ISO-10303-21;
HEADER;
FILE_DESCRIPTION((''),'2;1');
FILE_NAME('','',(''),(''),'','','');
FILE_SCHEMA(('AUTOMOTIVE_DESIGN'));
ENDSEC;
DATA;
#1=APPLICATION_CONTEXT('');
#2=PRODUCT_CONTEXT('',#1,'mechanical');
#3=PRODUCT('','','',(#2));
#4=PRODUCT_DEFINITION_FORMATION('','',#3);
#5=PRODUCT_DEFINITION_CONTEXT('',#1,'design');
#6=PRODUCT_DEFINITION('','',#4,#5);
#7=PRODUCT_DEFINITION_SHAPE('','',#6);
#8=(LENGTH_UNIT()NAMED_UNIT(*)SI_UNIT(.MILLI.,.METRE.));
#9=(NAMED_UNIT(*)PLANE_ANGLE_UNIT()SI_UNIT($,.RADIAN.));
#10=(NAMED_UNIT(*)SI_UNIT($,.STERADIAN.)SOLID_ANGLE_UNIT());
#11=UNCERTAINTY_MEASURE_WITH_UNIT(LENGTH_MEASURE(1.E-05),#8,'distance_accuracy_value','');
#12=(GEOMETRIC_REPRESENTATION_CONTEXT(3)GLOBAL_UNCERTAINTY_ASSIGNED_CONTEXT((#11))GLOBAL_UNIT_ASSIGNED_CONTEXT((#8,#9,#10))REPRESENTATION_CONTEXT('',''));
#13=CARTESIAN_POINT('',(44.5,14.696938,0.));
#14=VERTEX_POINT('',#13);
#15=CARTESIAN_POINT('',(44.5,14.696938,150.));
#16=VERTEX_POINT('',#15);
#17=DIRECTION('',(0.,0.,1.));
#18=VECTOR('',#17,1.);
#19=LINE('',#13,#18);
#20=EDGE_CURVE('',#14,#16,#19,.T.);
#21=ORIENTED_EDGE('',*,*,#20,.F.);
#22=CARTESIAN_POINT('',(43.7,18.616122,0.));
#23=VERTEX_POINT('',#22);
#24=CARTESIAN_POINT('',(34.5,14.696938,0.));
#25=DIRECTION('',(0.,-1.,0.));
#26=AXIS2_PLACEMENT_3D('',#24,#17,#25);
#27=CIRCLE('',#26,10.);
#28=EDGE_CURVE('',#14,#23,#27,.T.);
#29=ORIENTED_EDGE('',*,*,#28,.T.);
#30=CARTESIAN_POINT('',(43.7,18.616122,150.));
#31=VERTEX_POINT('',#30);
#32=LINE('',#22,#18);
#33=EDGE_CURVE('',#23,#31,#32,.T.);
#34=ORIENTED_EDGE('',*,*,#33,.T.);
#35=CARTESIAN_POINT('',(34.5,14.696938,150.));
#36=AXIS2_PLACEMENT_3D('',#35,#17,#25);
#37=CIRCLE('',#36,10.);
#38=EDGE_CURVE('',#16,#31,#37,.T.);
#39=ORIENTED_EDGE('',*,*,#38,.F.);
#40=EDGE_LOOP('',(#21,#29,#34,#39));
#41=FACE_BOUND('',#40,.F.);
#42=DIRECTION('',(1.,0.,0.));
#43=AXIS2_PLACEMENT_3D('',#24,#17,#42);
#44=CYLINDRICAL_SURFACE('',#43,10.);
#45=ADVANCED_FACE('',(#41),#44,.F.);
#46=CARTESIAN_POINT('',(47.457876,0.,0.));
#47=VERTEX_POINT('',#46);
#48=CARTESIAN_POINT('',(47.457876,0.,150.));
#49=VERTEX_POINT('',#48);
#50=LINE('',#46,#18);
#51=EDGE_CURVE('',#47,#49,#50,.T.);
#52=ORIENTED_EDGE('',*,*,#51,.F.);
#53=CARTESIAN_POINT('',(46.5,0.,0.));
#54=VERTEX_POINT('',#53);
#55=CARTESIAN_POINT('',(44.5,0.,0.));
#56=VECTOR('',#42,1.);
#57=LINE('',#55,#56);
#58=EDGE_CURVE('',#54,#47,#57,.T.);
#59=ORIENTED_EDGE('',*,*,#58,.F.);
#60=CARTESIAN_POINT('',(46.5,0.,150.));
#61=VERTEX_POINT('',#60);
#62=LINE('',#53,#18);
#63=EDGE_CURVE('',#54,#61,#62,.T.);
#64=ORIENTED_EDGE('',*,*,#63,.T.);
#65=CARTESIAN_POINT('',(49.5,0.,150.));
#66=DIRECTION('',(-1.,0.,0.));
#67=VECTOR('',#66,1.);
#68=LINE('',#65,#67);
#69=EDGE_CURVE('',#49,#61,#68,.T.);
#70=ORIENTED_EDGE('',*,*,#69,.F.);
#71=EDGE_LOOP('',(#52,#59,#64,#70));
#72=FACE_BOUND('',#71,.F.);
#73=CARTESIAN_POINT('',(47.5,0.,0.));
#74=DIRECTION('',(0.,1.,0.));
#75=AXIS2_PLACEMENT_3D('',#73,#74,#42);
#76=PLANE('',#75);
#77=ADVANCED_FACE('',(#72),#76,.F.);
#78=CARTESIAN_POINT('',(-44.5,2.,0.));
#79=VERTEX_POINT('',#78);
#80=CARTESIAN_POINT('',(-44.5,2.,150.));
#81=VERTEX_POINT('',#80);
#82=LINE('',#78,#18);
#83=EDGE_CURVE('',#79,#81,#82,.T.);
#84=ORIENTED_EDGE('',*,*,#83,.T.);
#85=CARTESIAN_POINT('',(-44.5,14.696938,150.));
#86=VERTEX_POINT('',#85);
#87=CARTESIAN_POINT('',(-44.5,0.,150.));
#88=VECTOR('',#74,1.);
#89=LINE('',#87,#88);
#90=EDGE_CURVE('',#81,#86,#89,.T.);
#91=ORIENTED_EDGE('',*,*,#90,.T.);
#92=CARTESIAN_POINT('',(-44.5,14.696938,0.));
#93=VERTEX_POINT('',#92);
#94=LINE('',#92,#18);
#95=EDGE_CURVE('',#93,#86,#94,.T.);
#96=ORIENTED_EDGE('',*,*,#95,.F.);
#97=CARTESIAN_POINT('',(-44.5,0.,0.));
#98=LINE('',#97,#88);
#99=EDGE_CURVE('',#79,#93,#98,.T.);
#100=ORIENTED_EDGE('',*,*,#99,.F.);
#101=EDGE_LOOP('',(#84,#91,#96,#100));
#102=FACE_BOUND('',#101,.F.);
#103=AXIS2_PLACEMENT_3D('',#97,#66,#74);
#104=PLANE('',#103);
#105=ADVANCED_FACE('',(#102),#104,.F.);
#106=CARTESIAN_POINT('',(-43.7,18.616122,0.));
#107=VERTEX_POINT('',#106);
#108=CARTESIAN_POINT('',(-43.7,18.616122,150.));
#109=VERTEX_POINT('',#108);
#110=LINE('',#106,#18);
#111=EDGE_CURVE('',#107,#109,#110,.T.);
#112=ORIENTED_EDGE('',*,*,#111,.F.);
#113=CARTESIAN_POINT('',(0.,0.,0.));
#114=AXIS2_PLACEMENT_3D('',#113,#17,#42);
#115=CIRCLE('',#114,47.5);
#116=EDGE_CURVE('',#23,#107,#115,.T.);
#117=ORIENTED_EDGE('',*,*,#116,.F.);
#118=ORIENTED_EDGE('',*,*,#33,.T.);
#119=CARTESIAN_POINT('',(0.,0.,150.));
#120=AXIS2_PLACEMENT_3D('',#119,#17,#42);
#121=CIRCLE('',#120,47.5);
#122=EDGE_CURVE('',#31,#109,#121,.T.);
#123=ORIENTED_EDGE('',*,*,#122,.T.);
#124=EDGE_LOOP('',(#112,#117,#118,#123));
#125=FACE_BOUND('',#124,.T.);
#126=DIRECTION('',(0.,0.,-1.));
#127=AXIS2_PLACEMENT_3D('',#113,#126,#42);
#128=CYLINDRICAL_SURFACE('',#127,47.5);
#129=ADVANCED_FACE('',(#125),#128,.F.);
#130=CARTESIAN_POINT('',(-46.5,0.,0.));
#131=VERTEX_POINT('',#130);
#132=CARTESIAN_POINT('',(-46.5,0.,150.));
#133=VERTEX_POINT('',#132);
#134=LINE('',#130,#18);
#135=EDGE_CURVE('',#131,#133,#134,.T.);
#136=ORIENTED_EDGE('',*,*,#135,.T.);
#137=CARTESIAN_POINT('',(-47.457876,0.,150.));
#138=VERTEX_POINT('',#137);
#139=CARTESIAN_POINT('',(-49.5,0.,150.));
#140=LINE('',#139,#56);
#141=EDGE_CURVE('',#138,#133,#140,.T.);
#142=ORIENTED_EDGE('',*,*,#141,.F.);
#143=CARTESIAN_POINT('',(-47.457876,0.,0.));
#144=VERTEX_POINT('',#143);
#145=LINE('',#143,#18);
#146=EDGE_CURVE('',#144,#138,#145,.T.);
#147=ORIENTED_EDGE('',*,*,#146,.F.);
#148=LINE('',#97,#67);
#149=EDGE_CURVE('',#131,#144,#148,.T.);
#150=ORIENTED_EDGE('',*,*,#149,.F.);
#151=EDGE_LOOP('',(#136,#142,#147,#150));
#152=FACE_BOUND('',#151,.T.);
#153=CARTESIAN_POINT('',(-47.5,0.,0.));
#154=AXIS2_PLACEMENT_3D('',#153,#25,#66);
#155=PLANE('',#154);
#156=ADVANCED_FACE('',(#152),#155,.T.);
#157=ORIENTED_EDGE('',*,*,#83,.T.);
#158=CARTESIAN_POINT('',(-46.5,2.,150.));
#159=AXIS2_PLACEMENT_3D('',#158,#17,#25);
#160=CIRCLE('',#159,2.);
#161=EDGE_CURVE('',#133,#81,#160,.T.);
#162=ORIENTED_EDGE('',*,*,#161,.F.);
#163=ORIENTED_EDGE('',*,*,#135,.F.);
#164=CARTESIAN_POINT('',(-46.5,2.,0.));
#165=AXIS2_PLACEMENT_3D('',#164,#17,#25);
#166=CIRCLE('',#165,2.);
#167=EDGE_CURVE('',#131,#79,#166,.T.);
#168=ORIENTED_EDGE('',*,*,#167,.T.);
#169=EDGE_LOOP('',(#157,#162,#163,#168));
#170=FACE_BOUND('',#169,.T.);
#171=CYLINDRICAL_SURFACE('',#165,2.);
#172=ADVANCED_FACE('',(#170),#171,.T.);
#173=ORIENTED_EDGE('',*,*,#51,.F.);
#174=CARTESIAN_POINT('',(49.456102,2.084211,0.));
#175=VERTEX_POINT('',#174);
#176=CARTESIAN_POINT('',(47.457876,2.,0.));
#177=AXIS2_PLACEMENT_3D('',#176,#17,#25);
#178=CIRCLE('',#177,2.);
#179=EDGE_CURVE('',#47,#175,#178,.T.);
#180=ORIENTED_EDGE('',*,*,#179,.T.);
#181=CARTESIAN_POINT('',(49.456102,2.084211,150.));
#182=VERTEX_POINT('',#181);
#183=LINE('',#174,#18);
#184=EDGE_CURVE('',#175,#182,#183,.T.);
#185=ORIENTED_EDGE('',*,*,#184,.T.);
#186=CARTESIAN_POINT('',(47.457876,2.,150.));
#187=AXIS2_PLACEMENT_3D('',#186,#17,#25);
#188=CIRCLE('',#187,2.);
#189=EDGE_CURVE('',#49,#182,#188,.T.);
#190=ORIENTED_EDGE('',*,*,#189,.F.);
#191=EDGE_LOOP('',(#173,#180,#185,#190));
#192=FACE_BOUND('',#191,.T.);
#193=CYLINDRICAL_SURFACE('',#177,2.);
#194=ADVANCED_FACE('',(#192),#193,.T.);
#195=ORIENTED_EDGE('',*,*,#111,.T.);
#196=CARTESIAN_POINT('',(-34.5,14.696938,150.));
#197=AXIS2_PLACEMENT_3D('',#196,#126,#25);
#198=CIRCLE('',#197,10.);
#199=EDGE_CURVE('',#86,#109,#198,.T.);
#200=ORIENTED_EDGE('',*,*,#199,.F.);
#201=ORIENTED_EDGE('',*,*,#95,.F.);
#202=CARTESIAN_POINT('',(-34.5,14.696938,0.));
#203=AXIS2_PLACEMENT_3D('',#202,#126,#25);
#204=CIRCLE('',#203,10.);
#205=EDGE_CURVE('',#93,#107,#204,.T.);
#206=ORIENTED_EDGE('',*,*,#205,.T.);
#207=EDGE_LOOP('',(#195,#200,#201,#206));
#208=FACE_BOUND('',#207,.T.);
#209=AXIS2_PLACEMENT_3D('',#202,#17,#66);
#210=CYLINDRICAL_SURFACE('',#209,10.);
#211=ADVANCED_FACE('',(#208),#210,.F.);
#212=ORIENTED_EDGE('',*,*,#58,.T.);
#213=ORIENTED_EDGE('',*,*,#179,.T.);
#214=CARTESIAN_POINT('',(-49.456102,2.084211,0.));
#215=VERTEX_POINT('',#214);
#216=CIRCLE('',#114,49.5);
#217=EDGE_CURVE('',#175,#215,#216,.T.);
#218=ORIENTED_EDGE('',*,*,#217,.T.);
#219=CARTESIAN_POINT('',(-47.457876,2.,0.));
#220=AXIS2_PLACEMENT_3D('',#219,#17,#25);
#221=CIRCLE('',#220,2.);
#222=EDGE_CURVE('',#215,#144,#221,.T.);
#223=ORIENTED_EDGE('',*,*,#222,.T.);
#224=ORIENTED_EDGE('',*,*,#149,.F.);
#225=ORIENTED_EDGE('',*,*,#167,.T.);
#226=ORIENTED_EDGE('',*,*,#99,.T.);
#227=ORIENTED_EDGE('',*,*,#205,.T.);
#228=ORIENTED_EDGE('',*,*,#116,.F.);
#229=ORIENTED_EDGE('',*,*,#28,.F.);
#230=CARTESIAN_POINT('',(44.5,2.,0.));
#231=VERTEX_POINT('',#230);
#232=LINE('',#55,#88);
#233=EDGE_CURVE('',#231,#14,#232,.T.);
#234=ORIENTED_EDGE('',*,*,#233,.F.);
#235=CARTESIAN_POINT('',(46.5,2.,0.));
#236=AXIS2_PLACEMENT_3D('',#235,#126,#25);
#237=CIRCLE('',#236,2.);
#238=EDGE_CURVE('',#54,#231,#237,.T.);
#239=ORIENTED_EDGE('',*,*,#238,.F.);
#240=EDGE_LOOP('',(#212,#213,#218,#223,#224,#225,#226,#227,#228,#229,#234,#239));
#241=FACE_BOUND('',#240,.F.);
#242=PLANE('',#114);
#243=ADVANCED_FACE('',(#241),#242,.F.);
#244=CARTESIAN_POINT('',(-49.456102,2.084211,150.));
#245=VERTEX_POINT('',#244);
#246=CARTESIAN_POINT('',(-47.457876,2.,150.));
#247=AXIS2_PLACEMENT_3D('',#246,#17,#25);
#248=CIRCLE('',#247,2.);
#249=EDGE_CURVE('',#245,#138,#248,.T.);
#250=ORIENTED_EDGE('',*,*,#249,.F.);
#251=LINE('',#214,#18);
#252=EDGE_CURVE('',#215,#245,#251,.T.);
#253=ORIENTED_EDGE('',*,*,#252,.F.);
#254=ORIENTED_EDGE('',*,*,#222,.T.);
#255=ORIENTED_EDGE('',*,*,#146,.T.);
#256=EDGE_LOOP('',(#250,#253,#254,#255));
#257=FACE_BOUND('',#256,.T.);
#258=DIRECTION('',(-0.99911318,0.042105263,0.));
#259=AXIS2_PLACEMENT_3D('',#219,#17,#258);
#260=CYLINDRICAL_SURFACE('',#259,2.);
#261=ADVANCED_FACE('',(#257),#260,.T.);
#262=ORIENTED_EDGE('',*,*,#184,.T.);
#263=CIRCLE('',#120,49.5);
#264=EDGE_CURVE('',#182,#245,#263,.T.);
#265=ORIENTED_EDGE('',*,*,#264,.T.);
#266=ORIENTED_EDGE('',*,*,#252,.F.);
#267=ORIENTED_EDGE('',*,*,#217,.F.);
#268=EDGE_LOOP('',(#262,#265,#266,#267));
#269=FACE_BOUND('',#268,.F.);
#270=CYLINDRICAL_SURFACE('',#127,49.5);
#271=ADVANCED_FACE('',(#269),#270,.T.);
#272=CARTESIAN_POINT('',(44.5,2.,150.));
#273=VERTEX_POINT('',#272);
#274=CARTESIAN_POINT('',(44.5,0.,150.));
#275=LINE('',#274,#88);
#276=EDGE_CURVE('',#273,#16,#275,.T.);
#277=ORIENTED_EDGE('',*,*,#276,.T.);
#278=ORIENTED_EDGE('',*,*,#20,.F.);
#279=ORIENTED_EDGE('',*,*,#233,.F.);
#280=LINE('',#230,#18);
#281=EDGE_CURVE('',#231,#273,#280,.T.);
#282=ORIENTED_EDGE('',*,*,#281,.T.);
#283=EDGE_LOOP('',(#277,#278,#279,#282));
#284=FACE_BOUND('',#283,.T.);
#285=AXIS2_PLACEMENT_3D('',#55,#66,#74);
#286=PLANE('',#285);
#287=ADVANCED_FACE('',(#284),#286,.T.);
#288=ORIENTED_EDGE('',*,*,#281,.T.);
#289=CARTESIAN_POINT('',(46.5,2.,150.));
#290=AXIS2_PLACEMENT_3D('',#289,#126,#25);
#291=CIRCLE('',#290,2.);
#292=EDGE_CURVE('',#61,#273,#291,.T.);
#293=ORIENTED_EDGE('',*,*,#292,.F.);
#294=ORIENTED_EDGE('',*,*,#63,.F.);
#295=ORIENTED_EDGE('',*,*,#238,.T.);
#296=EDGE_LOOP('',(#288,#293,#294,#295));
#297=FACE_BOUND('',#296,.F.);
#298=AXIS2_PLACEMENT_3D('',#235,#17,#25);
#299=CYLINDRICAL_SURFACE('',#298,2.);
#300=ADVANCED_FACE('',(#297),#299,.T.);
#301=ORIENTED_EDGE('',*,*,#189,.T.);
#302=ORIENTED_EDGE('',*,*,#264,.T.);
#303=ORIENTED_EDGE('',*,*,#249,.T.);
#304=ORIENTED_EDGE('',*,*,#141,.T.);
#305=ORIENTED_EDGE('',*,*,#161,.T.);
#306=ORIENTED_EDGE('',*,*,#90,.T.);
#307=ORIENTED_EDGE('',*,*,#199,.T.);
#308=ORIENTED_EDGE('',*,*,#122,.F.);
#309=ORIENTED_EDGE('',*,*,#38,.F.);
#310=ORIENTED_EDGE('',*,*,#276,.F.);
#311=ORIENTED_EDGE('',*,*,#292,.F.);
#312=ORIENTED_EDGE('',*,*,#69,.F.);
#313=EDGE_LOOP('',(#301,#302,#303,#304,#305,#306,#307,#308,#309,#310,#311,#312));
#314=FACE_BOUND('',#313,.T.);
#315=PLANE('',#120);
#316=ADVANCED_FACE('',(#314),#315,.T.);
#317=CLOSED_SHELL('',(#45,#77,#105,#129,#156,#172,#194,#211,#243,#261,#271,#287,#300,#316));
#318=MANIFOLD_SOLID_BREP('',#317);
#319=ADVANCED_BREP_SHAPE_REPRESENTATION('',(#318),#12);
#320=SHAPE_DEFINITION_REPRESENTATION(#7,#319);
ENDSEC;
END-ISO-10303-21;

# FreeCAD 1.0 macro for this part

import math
import FreeCAD as App
import Part
import Sketcher


def edges_at(feature, points):
    """Names of the edges that pass closest to the given points."""
    edges = feature.Shape.Edges
    near = lambda p: min(range(len(edges)), key=lambda i: edges[i].distToShape(Part.Vertex(*p))[0])
    return sorted({f"Edge{near(p) + 1}" for p in points})

doc = App.newDocument("Part")
body = doc.addObject("PartDesign::Body", "Body")

# Sketch on XY plane
sketch1 = body.newObject("Sketcher::SketchObject", "Sketch")
sketch1.AttachmentSupport = (doc.getObject("XY_Plane"), [""])
sketch1.MapMode = "FlatFace"
sketch1.addGeometry([
    Part.ArcOfCircle(Part.Circle(App.Vector(0, 0, 0), App.Vector(0, 0, 1), 49.5), math.radians(0), math.radians(180)),  # 0
    Part.LineSegment(App.Vector(-49.5, 0, 0), App.Vector(-44.5, 0, 0)),  # 1
    Part.LineSegment(App.Vector(-44.5, 0, 0), App.Vector(-44.5, 16.6132, 0)),  # 2
    Part.ArcOfCircle(Part.Circle(App.Vector(0, 0, 0), App.Vector(0, 0, 1), 47.5), math.radians(20.472129), math.radians(159.527871)),  # 3
    Part.LineSegment(App.Vector(44.5, 16.6132, 0), App.Vector(44.5, 0, 0)),  # 4
    Part.LineSegment(App.Vector(44.5, 0, 0), App.Vector(49.5, 0, 0)),  # 5
], False)
sketch1.addConstraint([
    Sketcher.Constraint("Coincident", 0, 2, 1, 1),
    Sketcher.Constraint("Coincident", 1, 2, 2, 1),
    Sketcher.Constraint("Coincident", 2, 2, 3, 2),
    Sketcher.Constraint("Coincident", 3, 1, 4, 1),
    Sketcher.Constraint("Coincident", 4, 2, 5, 1),
    Sketcher.Constraint("Coincident", 5, 2, 0, 1),
    Sketcher.Constraint("Horizontal", 1),
    Sketcher.Constraint("Vertical", 2),
    Sketcher.Constraint("Vertical", 4),
    Sketcher.Constraint("Horizontal", 5),
    Sketcher.Constraint("Coincident", 0, 3, -1, 1),
    Sketcher.Constraint("Coincident", 3, 3, -1, 1),
    Sketcher.Constraint("Symmetric", 1, 2, 4, 2, -1, 1),
    Sketcher.Constraint("PointOnObject", 0, 2, -1),
    Sketcher.Constraint("Radius", 0, 49.5),
    Sketcher.Constraint("DistanceX", 1, 1, 1, 2, 5.0),
    Sketcher.Constraint("Radius", 3, 47.5),
])
pad1 = body.newObject("PartDesign::Pad", "Pad")
pad1.Profile = sketch1
pad1.Length = 150
doc.recompute()

fillet = body.newObject("PartDesign::Fillet", "Fillet")
fillet.Base = (pad1, edges_at(pad1, [
    (-44.5, 0, 75),
    (-49.5, 0, 75),
    (44.5, 0, 75),
    (49.5, 0, 75),
]))
fillet.Radius = 2
doc.recompute()

fillet2 = body.newObject("PartDesign::Fillet", "Fillet001")
fillet2.Base = (fillet, edges_at(fillet, [(-44.5, 16.613, 75), (44.5, 16.613, 75)]))
fillet2.Radius = 10

doc.recompute()
